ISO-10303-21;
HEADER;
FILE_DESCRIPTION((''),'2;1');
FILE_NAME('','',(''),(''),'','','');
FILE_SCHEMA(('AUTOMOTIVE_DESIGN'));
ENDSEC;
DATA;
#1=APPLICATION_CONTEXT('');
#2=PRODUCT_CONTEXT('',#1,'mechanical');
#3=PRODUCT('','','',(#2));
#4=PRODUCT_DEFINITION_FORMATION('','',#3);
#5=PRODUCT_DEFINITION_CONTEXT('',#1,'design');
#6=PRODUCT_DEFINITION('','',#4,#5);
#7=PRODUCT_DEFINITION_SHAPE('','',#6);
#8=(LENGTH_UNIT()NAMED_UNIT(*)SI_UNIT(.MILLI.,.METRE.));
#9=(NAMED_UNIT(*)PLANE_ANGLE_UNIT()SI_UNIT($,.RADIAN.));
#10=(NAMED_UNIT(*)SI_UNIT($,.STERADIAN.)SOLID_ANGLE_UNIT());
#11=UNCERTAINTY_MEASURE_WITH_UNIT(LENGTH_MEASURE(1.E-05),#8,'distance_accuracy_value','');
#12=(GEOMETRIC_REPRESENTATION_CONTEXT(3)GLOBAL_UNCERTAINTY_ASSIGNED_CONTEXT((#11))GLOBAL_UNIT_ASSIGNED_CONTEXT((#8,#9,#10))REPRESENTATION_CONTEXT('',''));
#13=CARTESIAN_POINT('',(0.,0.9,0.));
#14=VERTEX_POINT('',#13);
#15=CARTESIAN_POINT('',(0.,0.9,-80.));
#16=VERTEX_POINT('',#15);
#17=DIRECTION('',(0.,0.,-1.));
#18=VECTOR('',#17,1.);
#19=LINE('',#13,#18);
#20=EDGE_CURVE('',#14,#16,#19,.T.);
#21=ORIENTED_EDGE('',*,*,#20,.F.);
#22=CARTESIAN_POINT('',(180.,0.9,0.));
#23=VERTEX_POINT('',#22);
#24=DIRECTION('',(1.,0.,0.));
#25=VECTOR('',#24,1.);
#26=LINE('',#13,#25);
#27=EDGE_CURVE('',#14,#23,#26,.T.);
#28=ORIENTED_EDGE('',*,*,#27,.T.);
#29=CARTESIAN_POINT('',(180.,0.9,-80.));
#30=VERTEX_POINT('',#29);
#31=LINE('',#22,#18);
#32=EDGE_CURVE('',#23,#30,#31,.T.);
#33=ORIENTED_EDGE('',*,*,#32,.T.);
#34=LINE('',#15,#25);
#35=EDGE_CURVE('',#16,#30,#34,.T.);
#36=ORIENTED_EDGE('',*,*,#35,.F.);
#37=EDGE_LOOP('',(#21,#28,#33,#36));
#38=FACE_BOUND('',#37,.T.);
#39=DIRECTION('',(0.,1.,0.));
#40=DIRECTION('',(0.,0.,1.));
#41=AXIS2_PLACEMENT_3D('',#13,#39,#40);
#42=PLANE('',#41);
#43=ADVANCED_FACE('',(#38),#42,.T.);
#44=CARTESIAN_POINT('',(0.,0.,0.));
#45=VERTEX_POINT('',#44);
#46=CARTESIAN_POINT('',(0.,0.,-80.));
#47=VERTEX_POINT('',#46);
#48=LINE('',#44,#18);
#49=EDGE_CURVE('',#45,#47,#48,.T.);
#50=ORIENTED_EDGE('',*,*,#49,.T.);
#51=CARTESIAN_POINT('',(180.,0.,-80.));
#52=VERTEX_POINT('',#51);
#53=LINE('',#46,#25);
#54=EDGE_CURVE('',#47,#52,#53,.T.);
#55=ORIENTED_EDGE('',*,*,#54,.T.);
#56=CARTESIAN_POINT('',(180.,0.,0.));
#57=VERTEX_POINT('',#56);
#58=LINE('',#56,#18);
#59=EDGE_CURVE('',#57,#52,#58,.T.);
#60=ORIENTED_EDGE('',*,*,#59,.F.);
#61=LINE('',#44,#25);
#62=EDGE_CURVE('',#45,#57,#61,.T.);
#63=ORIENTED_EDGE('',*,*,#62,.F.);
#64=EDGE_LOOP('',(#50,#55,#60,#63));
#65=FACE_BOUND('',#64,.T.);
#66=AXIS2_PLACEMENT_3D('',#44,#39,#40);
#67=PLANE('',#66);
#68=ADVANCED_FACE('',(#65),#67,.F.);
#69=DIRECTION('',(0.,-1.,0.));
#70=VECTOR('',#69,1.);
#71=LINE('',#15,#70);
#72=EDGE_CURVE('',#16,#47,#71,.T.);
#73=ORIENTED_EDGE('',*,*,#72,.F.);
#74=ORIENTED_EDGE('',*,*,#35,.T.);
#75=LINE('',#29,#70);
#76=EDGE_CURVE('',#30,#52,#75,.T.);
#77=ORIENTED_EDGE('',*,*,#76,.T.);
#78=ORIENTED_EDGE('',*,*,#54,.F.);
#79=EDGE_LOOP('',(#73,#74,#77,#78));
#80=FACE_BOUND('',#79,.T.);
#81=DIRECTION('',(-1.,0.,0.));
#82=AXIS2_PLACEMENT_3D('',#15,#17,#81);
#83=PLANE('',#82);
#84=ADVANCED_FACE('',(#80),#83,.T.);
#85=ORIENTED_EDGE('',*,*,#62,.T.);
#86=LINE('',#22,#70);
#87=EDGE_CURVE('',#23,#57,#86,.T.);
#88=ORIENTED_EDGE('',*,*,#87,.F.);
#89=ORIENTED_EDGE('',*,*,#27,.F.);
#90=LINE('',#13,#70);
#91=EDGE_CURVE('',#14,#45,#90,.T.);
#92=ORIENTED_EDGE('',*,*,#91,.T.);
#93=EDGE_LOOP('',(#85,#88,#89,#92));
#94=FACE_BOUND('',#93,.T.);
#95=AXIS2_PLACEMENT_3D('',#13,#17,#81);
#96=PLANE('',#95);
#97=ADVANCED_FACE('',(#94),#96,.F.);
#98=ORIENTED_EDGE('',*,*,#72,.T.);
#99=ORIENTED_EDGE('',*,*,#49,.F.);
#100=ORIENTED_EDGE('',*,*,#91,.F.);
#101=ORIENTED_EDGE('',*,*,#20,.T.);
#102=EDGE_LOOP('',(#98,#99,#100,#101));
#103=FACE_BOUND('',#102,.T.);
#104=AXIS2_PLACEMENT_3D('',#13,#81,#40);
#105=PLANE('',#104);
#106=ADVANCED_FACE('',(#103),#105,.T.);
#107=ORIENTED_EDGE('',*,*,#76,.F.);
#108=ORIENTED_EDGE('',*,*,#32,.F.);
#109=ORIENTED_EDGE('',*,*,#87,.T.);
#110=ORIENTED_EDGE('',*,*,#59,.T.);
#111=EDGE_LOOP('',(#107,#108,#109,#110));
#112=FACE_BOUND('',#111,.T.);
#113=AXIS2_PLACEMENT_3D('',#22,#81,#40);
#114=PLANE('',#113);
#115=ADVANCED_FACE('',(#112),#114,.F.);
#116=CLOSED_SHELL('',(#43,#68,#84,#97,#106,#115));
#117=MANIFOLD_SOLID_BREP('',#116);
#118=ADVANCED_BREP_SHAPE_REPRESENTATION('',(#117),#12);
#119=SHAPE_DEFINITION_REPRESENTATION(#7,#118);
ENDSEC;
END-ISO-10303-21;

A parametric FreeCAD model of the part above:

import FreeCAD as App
import Part
import Sketcher
Q = App.Units.Quantity


def add_polygon(sketch, points):
    """Adds a closed chain of lines whose ends are joined by coincident constraints."""
    first, n = sketch.GeometryCount, len(points)
    for a, b in zip(points, points[1:] + points[:1]):
        sketch.addGeometry(Part.LineSegment(App.Vector(*a, 0), App.Vector(*b, 0)), False)
    for i in range(n):
        sketch.addConstraint(Sketcher.Constraint("Coincident", first + i, 2, first + (i + 1) % n, 1))

doc = App.newDocument("Part")
body = doc.addObject("PartDesign::Body", "Body")

sketch1 = doc.addObject("Sketcher::SketchObject", "Sketch")
body.addObject(sketch1)
sketch1.AttachmentSupport = (doc.XZ_Plane, [""])
sketch1.MapMode = "FlatFace"
add_polygon(sketch1, [(0, -80), (0, 0), (180, 0), (180, -80)])
sketch1.addConstraint([
    Sketcher.Constraint("Vertical", 0),
    Sketcher.Constraint("Horizontal", 1),
    Sketcher.Constraint("Vertical", 2),
    Sketcher.Constraint("Horizontal", 3),
    Sketcher.Constraint("Coincident", 0, 2, -1, 1),
    Sketcher.Constraint("DistanceX", 1, 1, 1, 2, Q("180 mm")),
    Sketcher.Constraint("DistanceY", 0, 1, 0, 2, Q("80 mm")),
])
pad1 = doc.addObject("PartDesign::Pad", "Pad")
body.addObject(pad1)
pad1.Profile = sketch1
pad1.Length = 0.9
pad1.Reversed = True

doc.recompute()
